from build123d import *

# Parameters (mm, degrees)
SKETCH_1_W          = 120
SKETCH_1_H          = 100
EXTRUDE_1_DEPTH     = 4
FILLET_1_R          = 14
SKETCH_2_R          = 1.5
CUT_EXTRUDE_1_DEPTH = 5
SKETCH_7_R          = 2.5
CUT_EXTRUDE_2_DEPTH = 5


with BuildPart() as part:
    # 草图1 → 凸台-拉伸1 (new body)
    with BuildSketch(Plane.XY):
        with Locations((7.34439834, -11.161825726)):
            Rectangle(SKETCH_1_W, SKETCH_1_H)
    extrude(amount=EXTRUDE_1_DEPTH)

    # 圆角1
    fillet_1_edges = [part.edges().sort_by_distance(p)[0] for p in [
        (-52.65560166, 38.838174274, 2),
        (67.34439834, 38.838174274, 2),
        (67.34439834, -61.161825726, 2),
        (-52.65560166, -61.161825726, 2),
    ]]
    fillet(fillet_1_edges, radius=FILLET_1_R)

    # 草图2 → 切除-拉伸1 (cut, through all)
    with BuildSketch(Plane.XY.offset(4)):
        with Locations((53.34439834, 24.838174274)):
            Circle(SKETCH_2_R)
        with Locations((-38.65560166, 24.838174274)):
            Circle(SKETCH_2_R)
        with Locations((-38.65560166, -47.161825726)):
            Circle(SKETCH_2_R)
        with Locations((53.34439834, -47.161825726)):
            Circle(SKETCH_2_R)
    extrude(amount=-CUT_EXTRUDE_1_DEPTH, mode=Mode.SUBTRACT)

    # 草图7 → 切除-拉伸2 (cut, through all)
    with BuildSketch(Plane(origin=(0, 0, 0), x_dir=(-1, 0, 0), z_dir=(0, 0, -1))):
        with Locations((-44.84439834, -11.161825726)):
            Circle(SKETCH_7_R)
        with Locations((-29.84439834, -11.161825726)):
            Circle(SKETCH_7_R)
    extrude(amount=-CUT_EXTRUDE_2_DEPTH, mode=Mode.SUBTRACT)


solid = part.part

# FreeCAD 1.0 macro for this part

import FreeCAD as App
import Part
import Sketcher

V = App.Vector


def edges_at(feature, points):
    """Names of the edges that pass closest to the given points."""
    edges = feature.Shape.Edges
    near = lambda p: min(range(len(edges)), key=lambda i: edges[i].distToShape(Part.Vertex(*p))[0])
    return sorted({f"Edge{near(p) + 1}" for p in points})

doc = App.newDocument("Part")
params = doc.addObject("Spreadsheet::Sheet", "Params")
for row, (alias, value) in enumerate([
    ("sketch1_width", "120 mm"),
    ("sketch1_height", "100 mm"),
    ("pad1_length", "4 mm"),
    ("fillet_radius", "14 mm"),
    ("sketch2_diameter", "3 mm"),
    ("sketch3_diameter", "5 mm"),
], start=1):
    params.set(f"A{row}", alias)
    params.set(f"B{row}", "=" + value)
    params.setAlias(f"B{row}", alias)

body = doc.addObject("PartDesign::Body", "Body")

# Sketch on XY plane
sketch1 = body.newObject("Sketcher::SketchObject", "Sketch")
sketch1.AttachmentSupport = (doc.getObject("XY_Plane"), [""])
sketch1.MapMode = "FlatFace"
sketch1.addGeometry([
    Part.LineSegment(V(-53, 39, 0), V(-53, -61, 0)),
    Part.LineSegment(V(-53, -61, 0), V(67, -61, 0)),
    Part.LineSegment(V(67, -61, 0), V(67, 39, 0)),
    Part.LineSegment(V(67, 39, 0), V(-53, 39, 0)),
], False)
sketch1.addConstraint([
    Sketcher.Constraint("Coincident", 0, 2, 1, 1),
    Sketcher.Constraint("Coincident", 1, 2, 2, 1),
    Sketcher.Constraint("Coincident", 2, 2, 3, 1),
    Sketcher.Constraint("Coincident", 3, 2, 0, 1),
    Sketcher.Constraint("Vertical", 0),
    Sketcher.Constraint("Horizontal", 1),
    Sketcher.Constraint("Vertical", 2),
    Sketcher.Constraint("Horizontal", 3),
    Sketcher.Constraint("DistanceX", 1, 1, 1, 2, 120.0),
    Sketcher.Constraint("DistanceY", 0, 2, 0, 1, 100.0),
    Sketcher.Constraint("DistanceX", 0, 2, -1, 1, 52.655602),
    Sketcher.Constraint("DistanceY", 0, 2, -1, 1, 61.161826),
])
sketch1.setExpression("Constraints[8]", "Params.sketch1_width")
sketch1.setExpression("Constraints[9]", "Params.sketch1_height")
pad1 = body.newObject("PartDesign::Pad", "Pad")
pad1.Profile = sketch1
pad1.setExpression("Length", "Params.pad1_length")
doc.recompute()

fillet = body.newObject("PartDesign::Fillet", "Fillet")
fillet.Base = (pad1, edges_at(pad1, [
    (-52.656, 38.838, 2),
    (67.344, 38.838, 2),
    (67.344, -61.162, 2),
    (-52.656, -61.162, 2),
]))
fillet.setExpression("Radius", "Params.fillet_radius")

# Sketch on XY plane
sketch2 = body.newObject("Sketcher::SketchObject", "Sketch001")
sketch2.AttachmentSupport = (doc.getObject("XY_Plane"), [""])
sketch2.MapMode = "FlatFace"
sketch2.AttachmentOffset = App.Placement(V(0, 0, 4), App.Rotation())
sketch2.addGeometry([
    Part.Circle(V(53.3, 24.8, 0), V(0, 0, 1), 1.5),
    Part.Circle(V(-38.7, 24.8, 0), V(0, 0, 1), 1.5),
    Part.Circle(V(-38.7, -47.2, 0), V(0, 0, 1), 1.5),
    Part.Circle(V(53.3, -47.2, 0), V(0, 0, 1), 1.5),
], False)
sketch2.addConstraint([
    Sketcher.Constraint("Equal", 0, 1),
    Sketcher.Constraint("Equal", 1, 2),
    Sketcher.Constraint("Equal", 2, 3),
    Sketcher.Constraint("Horizontal", 0, 3, 1, 3),
    Sketcher.Constraint("Horizontal", 2, 3, 3, 3),
    Sketcher.Constraint("Vertical", 1, 3, 2, 3),
    Sketcher.Constraint("Vertical", 0, 3, 3, 3),
    Sketcher.Constraint("Diameter", 0, 3.0),
    Sketcher.Constraint("DistanceX", 1, 3, 0, 3, 92.0),
    Sketcher.Constraint("DistanceY", 2, 3, 1, 3, 72.0),
    Sketcher.Constraint("DistanceX", -1, 1, 0, 3, 53.344398),
    Sketcher.Constraint("DistanceY", -1, 1, 0, 3, 24.838174),
])
sketch2.setExpression("Constraints[7]", "Params.sketch2_diameter")
pocket1 = body.newObject("PartDesign::Pocket", "Pocket")
pocket1.Profile = sketch2
pocket1.Type = "ThroughAll"

# Sketch on XY plane
sketch3 = body.newObject("Sketcher::SketchObject", "Sketch002")
sketch3.AttachmentSupport = (doc.getObject("XY_Plane"), [""])
sketch3.MapMode = "FlatFace"
sketch3.addGeometry([
    Part.Circle(V(44.8, -11.2, 0), V(0, 0, 1), 2.5),
    Part.Circle(V(29.8, -11.2, 0), V(0, 0, 1), 2.5),
], False)
sketch3.addConstraint([
    Sketcher.Constraint("Equal", 0, 1),
    Sketcher.Constraint("Horizontal", 0, 3, 1, 3),
    Sketcher.Constraint("Diameter", 0, 5.0),
    Sketcher.Constraint("DistanceX", 1, 3, 0, 3, 15.0),
    Sketcher.Constraint("DistanceX", -1, 1, 0, 3, 44.844398),
    Sketcher.Constraint("DistanceY", 0, 3, -1, 1, 11.161826),
])
sketch3.setExpression("Constraints[2]", "Params.sketch3_diameter")
pocket2 = body.newObject("PartDesign::Pocket", "Pocket001")
pocket2.Profile = sketch3
pocket2.Type = "ThroughAll"
pocket2.Reversed = True

doc.recompute()
